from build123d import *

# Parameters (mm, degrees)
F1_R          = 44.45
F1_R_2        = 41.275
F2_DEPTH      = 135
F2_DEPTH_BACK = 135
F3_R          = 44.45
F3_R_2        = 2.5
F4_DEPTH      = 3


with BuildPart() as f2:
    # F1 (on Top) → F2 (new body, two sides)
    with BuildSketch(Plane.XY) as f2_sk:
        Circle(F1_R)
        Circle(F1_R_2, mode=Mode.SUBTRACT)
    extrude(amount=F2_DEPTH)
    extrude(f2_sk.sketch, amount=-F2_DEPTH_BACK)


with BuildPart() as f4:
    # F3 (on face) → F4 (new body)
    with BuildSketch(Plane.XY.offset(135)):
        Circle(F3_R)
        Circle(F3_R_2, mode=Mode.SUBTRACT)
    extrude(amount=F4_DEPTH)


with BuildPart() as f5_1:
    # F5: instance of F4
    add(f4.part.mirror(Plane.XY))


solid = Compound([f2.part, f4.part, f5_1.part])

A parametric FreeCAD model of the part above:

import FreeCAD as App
import Part
import Sketcher
Q = App.Units.Quantity

doc = App.newDocument("Part")
body = doc.addObject("PartDesign::Body", "Body")

# Sketch on XY plane
sketch1 = body.newObject("Sketcher::SketchObject", "Sketch")
sketch1.AttachmentSupport = (doc.getObject("XY_Plane"), [""])
sketch1.MapMode = "FlatFace"
sketch1.addGeometry([
    Part.Circle(App.Vector(0, 0, 0), App.Vector(0, 0, 1), 44),
    Part.Circle(App.Vector(0, 0, 0), App.Vector(0, 0, 1), 41),
], False)
sketch1.addConstraint([
    Sketcher.Constraint("Coincident", 0, 3, -1, 1),
    Sketcher.Constraint("Coincident", 1, 3, -1, 1),
    Sketcher.Constraint("Diameter", 0, Q("88.9 mm")),
    Sketcher.Constraint("Diameter", 1, Q("82.55 mm")),
])
pad1 = body.newObject("PartDesign::Pad", "Pad")
pad1.Profile = sketch1
pad1.Type = "TwoLengths"
pad1.Length = 135
pad1.Length2 = 135
body2 = doc.addObject("PartDesign::Body", "Body001")

# Sketch on XY plane
sketch2 = body2.newObject("Sketcher::SketchObject", "Sketch001")
sketch2.AttachmentSupport = (doc.getObject("XY_Plane001"), [""])
sketch2.MapMode = "FlatFace"
sketch2.AttachmentOffset = App.Placement(App.Vector(0, 0, 135), App.Rotation())
sketch2.addGeometry([
    Part.Circle(App.Vector(0, 0, 0), App.Vector(0, 0, 1), 44.5),
    Part.Circle(App.Vector(0, 0, 0), App.Vector(0, 0, 1), 2.5),
], False)
sketch2.addConstraint([
    Sketcher.Constraint("Coincident", 0, 3, -1, 1),
    Sketcher.Constraint("Coincident", 1, 3, -1, 1),
    Sketcher.Constraint("Diameter", 1, Q("5 mm")),
    Sketcher.Constraint("Diameter", 0, Q("88.9 mm")),
])
pad2 = body2.newObject("PartDesign::Pad", "Pad001")
pad2.Profile = sketch2
pad2.Length = 3
body3 = doc.addObject("PartDesign::Body", "Body002")
doc.recompute()

mirroring = doc.addObject("Part::Mirroring", "Mirroring")
mirroring.Source = body2
mirroring.Base = App.Vector(0, 0, 0)
mirroring.Normal = App.Vector(0, 0, 1)
body3.BaseFeature = mirroring
doc.recompute()
mirroring.Visibility = False

doc.recompute()
